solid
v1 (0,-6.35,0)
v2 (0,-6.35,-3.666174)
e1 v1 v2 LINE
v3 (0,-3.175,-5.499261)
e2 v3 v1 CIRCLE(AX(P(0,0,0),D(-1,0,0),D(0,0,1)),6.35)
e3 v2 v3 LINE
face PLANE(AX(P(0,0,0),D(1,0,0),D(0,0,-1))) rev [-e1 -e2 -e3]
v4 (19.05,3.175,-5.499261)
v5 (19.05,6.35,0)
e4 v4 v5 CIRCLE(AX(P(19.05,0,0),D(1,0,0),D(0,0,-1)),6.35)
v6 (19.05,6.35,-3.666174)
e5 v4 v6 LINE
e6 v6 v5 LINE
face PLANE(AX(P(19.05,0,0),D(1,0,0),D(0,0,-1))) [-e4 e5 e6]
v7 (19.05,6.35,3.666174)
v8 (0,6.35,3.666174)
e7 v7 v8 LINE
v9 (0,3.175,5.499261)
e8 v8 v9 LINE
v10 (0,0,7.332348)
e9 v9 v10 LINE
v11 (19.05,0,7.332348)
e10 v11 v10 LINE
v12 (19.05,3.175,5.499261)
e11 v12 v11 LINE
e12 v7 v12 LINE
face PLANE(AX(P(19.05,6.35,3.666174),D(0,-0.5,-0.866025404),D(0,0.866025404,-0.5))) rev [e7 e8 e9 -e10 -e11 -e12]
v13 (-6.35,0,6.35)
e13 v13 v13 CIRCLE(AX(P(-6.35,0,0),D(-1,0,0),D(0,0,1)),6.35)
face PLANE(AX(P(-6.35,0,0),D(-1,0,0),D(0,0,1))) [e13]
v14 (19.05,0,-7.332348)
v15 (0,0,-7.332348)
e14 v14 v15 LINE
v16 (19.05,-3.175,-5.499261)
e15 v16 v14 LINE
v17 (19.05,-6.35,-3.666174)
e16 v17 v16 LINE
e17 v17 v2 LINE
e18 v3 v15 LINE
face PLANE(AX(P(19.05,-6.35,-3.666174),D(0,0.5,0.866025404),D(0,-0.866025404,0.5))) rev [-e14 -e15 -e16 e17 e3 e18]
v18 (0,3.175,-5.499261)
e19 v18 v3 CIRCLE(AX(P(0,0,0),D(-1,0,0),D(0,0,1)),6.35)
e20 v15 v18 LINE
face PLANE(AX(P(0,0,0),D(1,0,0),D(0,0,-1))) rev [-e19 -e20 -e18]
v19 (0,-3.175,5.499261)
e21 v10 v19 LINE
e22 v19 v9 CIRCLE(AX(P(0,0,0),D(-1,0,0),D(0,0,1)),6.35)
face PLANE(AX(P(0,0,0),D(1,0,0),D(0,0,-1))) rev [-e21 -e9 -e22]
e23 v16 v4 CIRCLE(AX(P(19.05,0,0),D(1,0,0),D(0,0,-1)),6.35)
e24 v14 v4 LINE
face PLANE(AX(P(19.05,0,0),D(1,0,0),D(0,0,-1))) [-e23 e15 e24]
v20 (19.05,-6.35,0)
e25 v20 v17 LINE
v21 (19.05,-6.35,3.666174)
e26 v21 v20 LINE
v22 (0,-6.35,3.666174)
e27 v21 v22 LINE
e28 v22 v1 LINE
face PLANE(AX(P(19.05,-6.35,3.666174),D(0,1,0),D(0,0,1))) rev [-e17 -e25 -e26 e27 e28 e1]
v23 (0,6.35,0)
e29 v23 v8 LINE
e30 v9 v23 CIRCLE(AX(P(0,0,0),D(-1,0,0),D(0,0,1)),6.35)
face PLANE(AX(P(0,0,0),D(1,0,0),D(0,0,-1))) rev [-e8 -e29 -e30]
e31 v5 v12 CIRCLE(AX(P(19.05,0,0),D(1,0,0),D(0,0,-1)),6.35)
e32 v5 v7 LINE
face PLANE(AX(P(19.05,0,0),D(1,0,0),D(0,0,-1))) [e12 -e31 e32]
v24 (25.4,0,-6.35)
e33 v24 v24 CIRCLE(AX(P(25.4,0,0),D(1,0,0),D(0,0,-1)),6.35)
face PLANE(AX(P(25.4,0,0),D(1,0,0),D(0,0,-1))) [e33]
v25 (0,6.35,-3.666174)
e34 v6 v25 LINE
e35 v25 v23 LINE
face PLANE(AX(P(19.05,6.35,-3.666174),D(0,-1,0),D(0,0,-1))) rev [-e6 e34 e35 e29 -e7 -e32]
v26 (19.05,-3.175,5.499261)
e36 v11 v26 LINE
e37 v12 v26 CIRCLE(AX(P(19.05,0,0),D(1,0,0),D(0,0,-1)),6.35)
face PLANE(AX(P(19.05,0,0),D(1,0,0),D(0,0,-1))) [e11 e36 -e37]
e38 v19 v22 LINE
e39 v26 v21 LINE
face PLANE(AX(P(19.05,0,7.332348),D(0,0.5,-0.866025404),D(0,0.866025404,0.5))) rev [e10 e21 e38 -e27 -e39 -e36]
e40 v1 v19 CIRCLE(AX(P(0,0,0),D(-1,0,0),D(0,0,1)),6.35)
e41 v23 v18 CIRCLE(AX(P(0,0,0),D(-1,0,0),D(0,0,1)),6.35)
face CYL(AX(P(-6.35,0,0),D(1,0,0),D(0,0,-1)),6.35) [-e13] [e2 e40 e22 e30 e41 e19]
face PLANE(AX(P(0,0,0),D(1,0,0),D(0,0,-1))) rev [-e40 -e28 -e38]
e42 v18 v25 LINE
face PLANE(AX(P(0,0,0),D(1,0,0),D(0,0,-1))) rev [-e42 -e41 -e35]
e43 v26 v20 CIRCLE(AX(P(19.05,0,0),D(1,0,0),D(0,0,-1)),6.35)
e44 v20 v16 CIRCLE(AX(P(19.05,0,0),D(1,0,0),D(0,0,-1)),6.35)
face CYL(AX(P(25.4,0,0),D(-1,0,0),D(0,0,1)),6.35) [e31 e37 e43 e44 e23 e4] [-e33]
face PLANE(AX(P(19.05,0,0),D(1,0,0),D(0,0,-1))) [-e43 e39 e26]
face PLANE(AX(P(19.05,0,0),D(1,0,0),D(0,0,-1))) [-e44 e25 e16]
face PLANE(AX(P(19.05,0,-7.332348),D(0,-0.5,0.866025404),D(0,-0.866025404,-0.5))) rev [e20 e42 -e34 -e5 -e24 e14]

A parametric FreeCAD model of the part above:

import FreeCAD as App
import Part
import Sketcher

V = App.Vector
Q = App.Units.Quantity

doc = App.newDocument("Part")
body = doc.addObject("PartDesign::Body", "Body")

# Sketch on YZ plane
sketch1 = body.newObject("Sketcher::SketchObject", "Sketch")
sketch1.AttachmentSupport = (doc.getObject("YZ_Plane"), [""])
sketch1.MapMode = "FlatFace"
sketch1.addGeometry([
    Part.LineSegment(V(-6, 4, 0), V(-6, -4, 0)),  # 0
    Part.LineSegment(V(-6, -4, 0), V(0, -7, 0)),  # 1
    Part.LineSegment(V(0, -7, 0), V(6, -4, 0)),  # 2
    Part.LineSegment(V(6, -4, 0), V(6, 4, 0)),  # 3
    Part.LineSegment(V(6, 4, 0), V(0, 7, 0)),  # 4
    Part.LineSegment(V(0, 7, 0), V(-6, 4, 0)),  # 5
], False)
sketch1.addConstraint([
    Sketcher.Constraint("Coincident", 0, 2, 1, 1),
    Sketcher.Constraint("Coincident", 1, 2, 2, 1),
    Sketcher.Constraint("Coincident", 2, 2, 3, 1),
    Sketcher.Constraint("Coincident", 3, 2, 4, 1),
    Sketcher.Constraint("Coincident", 4, 2, 5, 1),
    Sketcher.Constraint("Coincident", 5, 2, 0, 1),
    Sketcher.Constraint("Vertical", 0),
    Sketcher.Constraint("Vertical", 3),
    Sketcher.Constraint("Symmetric", 0, 2, 3, 2, -1, 1),
    Sketcher.Constraint("Symmetric", 1, 2, 4, 2, -1, 1),
    Sketcher.Constraint("PointOnObject", 1, 2, -2),
    Sketcher.Constraint("Parallel", 2, 5),
    Sketcher.Constraint("Horizontal", 0, 2, 2, 2),
    Sketcher.Constraint("Angle", 1, Q("-30 deg")),
    Sketcher.Constraint("DistanceX", 0, 2, 2, 2, Q("0.5 in")),
    Sketcher.Constraint("DistanceY", 0, 2, 0, 1, Q("7.332348 mm")),
])
pad1 = body.newObject("PartDesign::Pad", "Pad")
pad1.Profile = sketch1
pad1.Length = Q("0.75 in")

# Sketch on YZ plane
sketch2 = body.newObject("Sketcher::SketchObject", "Sketch001")
sketch2.AttachmentSupport = (doc.getObject("YZ_Plane"), [""])
sketch2.MapMode = "FlatFace"
sketch2.AttachmentOffset = App.Placement(V(0, 0, 0.75 * 25.4), App.Rotation())
sketch2.addGeometry(Part.Circle(V(0, 0, 0), V(0, 0, 1), 6), False)
sketch2.addConstraint([
    Sketcher.Constraint("Coincident", 0, 3, -1, 1),
    Sketcher.Constraint("Diameter", 0, Q("0.5 in")),
])
pad2 = body.newObject("PartDesign::Pad", "Pad001")
pad2.Profile = sketch2
pad2.Length = Q("0.25 in")

# Sketch on YZ plane
sketch3 = body.newObject("Sketcher::SketchObject", "Sketch002")
sketch3.AttachmentSupport = (doc.getObject("YZ_Plane"), [""])
sketch3.MapMode = "FlatFace"
sketch3.AttachmentOffset = App.Placement(V(0, 0, -0.25 * 25.4), App.Rotation())
sketch3.addGeometry(Part.Circle(V(0, 0, 0), V(0, 0, 1), 6), False)
sketch3.addConstraint([
    Sketcher.Constraint("Coincident", 0, 3, -1, 1),
    Sketcher.Constraint("Diameter", 0, Q("0.5 in")),
])
pad3 = body.newObject("PartDesign::Pad", "Pad002")
pad3.Profile = sketch3
pad3.Length = Q("0.25 in")

doc.recompute()
